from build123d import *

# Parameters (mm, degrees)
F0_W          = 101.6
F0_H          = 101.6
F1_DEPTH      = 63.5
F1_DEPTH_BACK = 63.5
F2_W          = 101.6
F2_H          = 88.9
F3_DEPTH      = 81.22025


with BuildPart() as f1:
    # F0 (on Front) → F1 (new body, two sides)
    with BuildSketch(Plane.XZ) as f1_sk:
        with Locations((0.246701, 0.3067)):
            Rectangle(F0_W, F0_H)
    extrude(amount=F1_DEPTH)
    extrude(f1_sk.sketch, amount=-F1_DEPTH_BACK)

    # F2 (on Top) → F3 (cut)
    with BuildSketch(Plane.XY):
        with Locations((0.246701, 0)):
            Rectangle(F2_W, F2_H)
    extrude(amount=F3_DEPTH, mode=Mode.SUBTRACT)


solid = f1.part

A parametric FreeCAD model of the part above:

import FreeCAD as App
import Part
import Sketcher

V = App.Vector
Q = App.Units.Quantity


def add_polygon(sketch, points):
    """Adds a closed chain of lines whose ends are joined by coincident constraints."""
    first, n = sketch.GeometryCount, len(points)
    for a, b in zip(points, points[1:] + points[:1]):
        sketch.addGeometry(Part.LineSegment(App.Vector(*a, 0), App.Vector(*b, 0)), False)
    for i in range(n):
        sketch.addConstraint(Sketcher.Constraint("Coincident", first + i, 2, first + (i + 1) % n, 1))

doc = App.newDocument("Part")
params = doc.addObject("Spreadsheet::Sheet", "Params")
for row, (alias, value) in enumerate([
    ("sketch1_width", "4 in"),
    ("pad1_length", "2.5 in"),
    ("pad1_length2", "2.5 in"),
    ("sketch2_width", "4 in"),
    ("sketch2_height", "3.5 in"),
    ("pocket1_length", "81.22025 mm"),
], start=1):
    params.set(f"A{row}", alias)
    params.set(f"B{row}", "=" + value)
    params.setAlias(f"B{row}", alias)

body = doc.addObject("PartDesign::Body", "Body")

# Sketch on XZ plane
sketch1 = body.newObject("Sketcher::SketchObject", "Sketch")
sketch1.AttachmentSupport = (doc.getObject("XZ_Plane"), [""])
sketch1.MapMode = "FlatFace"
add_polygon(sketch1, [(-51, 51), (-51, -50), (51, -50), (51, 51)])  # lines 0-3
sketch1.addConstraint(Sketcher.Constraint("Vertical", 0))
sketch1.addConstraint(Sketcher.Constraint("Horizontal", 1))
sketch1.addConstraint(Sketcher.Constraint("Vertical", 2))
sketch1.addConstraint(Sketcher.Constraint("Horizontal", 3))
sketch1.addConstraint(Sketcher.Constraint("Equal", 3, 0))
sketch1.addConstraint(Sketcher.Constraint("DistanceX", 1, 1, 1, 2, Q("4 in")))
sketch1.addConstraint(Sketcher.Constraint("DistanceX", 0, 2, -1, 1, Q("50.553299 mm")))
sketch1.addConstraint(Sketcher.Constraint("DistanceY", 0, 2, -1, 1, Q("50.4933 mm")))
sketch1.setExpression("Constraints[9]", "Params.sketch1_width")
pad1 = body.newObject("PartDesign::Pad", "Pad")
pad1.Profile = sketch1
pad1.Type = "TwoLengths"
pad1.setExpression("Length", "Params.pad1_length")
pad1.setExpression("Length2", "Params.pad1_length2")

# Sketch on XY plane
sketch2 = body.newObject("Sketcher::SketchObject", "Sketch001")
sketch2.AttachmentSupport = (doc.getObject("XY_Plane"), [""])
sketch2.MapMode = "FlatFace"
add_polygon(sketch2, [(-51, 44), (-51, -44), (51, -44), (51, 44)])  # lines 0-3
sketch2.addConstraint(Sketcher.Constraint("Vertical", 0))
sketch2.addConstraint(Sketcher.Constraint("Horizontal", 1))
sketch2.addConstraint(Sketcher.Constraint("Vertical", 2))
sketch2.addConstraint(Sketcher.Constraint("Horizontal", 3))
sketch2.addConstraint(Sketcher.Constraint("DistanceX", 1, 1, 1, 2, Q("4 in")))
sketch2.addConstraint(Sketcher.Constraint("DistanceY", 0, 2, 0, 1, Q("3.5 in")))
sketch2.addConstraint(Sketcher.Constraint("DistanceY", 0, 2, -1, 1, Q("1.75 in")))
sketch2.addConstraint(Sketcher.Constraint("DistanceX", 0, 2, -1, 1, Q("50.553299 mm")))
sketch2.setExpression("Constraints[8]", "Params.sketch2_width")
sketch2.setExpression("Constraints[9]", "Params.sketch2_height")
pocket1 = body.newObject("PartDesign::Pocket", "Pocket")
pocket1.Profile = sketch2
pocket1.setExpression("Length", "Params.pocket1_length")
pocket1.Reversed = True

doc.recompute()
